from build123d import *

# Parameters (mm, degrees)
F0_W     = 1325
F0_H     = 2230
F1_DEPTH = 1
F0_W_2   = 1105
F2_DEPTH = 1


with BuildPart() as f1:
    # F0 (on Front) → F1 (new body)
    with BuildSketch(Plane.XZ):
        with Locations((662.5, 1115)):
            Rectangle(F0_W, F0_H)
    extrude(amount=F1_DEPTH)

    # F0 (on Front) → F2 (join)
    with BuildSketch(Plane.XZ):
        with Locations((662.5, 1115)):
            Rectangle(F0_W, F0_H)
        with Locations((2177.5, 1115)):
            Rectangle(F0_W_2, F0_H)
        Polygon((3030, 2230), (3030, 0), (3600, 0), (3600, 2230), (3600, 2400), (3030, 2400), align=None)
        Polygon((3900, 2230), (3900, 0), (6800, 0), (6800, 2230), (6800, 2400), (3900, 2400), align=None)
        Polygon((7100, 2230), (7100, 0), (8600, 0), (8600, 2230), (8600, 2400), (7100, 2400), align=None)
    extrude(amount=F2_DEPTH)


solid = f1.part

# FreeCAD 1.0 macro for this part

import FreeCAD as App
import Part
import Sketcher
from FreeCAD import Vector

doc = App.newDocument("Part")
body = doc.addObject("PartDesign::Body", "Body")
body.AllowCompound = True

# Sketch on XZ plane
sketch1 = body.newObject("Sketcher::SketchObject", "Sketch")
sketch1.AttachmentSupport = (doc.getObject("XZ_Plane"), [""])
sketch1.MapMode = "FlatFace"
sketch1.addGeometry(Part.LineSegment(Vector(0, 2230, 0), Vector(0, 0, 0)), False)
sketch1.addGeometry(Part.LineSegment(Vector(0, 0, 0), Vector(1325, 0, 0)), False)
sketch1.addGeometry(Part.LineSegment(Vector(1325, 0, 0), Vector(1325, 2230, 0)), False)
sketch1.addGeometry(Part.LineSegment(Vector(1325, 2230, 0), Vector(0, 2230, 0)), False)
sketch1.addConstraint(Sketcher.Constraint("Coincident", 0, 2, 1, 1))
sketch1.addConstraint(Sketcher.Constraint("Coincident", 1, 2, 2, 1))
sketch1.addConstraint(Sketcher.Constraint("Coincident", 2, 2, 3, 1))
sketch1.addConstraint(Sketcher.Constraint("Coincident", 3, 2, 0, 1))
sketch1.addConstraint(Sketcher.Constraint("Vertical", 0))
sketch1.addConstraint(Sketcher.Constraint("Horizontal", 1))
sketch1.addConstraint(Sketcher.Constraint("Vertical", 2))
sketch1.addConstraint(Sketcher.Constraint("Horizontal", 3))
sketch1.addConstraint(Sketcher.Constraint("Coincident", 0, 2, -1, 1))
sketch1.addConstraint(Sketcher.Constraint("DistanceX", 1, 1, 1, 2, 1325.0))
sketch1.addConstraint(Sketcher.Constraint("DistanceY", 0, 2, 0, 1, 2230.0))
pad1 = body.newObject("PartDesign::Pad", "Pad")
pad1.Profile = sketch1
pad1.Length = 1

# Sketch on XZ plane
sketch2 = body.newObject("Sketcher::SketchObject", "Sketch001")
sketch2.AttachmentSupport = (doc.getObject("XZ_Plane"), [""])
sketch2.MapMode = "FlatFace"
sketch2.addGeometry(Part.LineSegment(Vector(0, 2230, 0), Vector(0, 0, 0)), False)
sketch2.addGeometry(Part.LineSegment(Vector(0, 0, 0), Vector(1325, 0, 0)), False)
sketch2.addGeometry(Part.LineSegment(Vector(1325, 0, 0), Vector(1325, 2230, 0)), False)
sketch2.addGeometry(Part.LineSegment(Vector(1325, 2230, 0), Vector(0, 2230, 0)), False)
sketch2.addGeometry(Part.LineSegment(Vector(1625, 2230, 0), Vector(1625, 0, 0)), False)
sketch2.addGeometry(Part.LineSegment(Vector(1625, 0, 0), Vector(2730, 0, 0)), False)
sketch2.addGeometry(Part.LineSegment(Vector(2730, 0, 0), Vector(2730, 2230, 0)), False)
sketch2.addGeometry(Part.LineSegment(Vector(2730, 2230, 0), Vector(1625, 2230, 0)), False)
sketch2.addGeometry(Part.LineSegment(Vector(3030, 0, 0), Vector(3600, 0, 0)), False)
sketch2.addGeometry(Part.LineSegment(Vector(3600, 0, 0), Vector(3600, 2400, 0)), False)
sketch2.addGeometry(Part.LineSegment(Vector(3600, 2400, 0), Vector(3030, 2400, 0)), False)
sketch2.addGeometry(Part.LineSegment(Vector(3030, 2400, 0), Vector(3030, 0, 0)), False)
sketch2.addGeometry(Part.LineSegment(Vector(3900, 0, 0), Vector(6800, 0, 0)), False)
sketch2.addGeometry(Part.LineSegment(Vector(6800, 0, 0), Vector(6800, 2400, 0)), False)
sketch2.addGeometry(Part.LineSegment(Vector(6800, 2400, 0), Vector(3900, 2400, 0)), False)
sketch2.addGeometry(Part.LineSegment(Vector(3900, 2400, 0), Vector(3900, 0, 0)), False)
sketch2.addGeometry(Part.LineSegment(Vector(7100, 0, 0), Vector(8600, 0, 0)), False)
sketch2.addGeometry(Part.LineSegment(Vector(8600, 0, 0), Vector(8600, 2400, 0)), False)
sketch2.addGeometry(Part.LineSegment(Vector(8600, 2400, 0), Vector(7100, 2400, 0)), False)
sketch2.addGeometry(Part.LineSegment(Vector(7100, 2400, 0), Vector(7100, 0, 0)), False)
sketch2.addConstraint(Sketcher.Constraint("Coincident", 0, 2, 1, 1))
sketch2.addConstraint(Sketcher.Constraint("Coincident", 1, 2, 2, 1))
sketch2.addConstraint(Sketcher.Constraint("Coincident", 2, 2, 3, 1))
sketch2.addConstraint(Sketcher.Constraint("Coincident", 3, 2, 0, 1))
sketch2.addConstraint(Sketcher.Constraint("Coincident", 4, 2, 5, 1))
sketch2.addConstraint(Sketcher.Constraint("Coincident", 5, 2, 6, 1))
sketch2.addConstraint(Sketcher.Constraint("Coincident", 6, 2, 7, 1))
sketch2.addConstraint(Sketcher.Constraint("Coincident", 7, 2, 4, 1))
sketch2.addConstraint(Sketcher.Constraint("Coincident", 8, 2, 9, 1))
sketch2.addConstraint(Sketcher.Constraint("Coincident", 9, 2, 10, 1))
sketch2.addConstraint(Sketcher.Constraint("Coincident", 10, 2, 11, 1))
sketch2.addConstraint(Sketcher.Constraint("Coincident", 11, 2, 8, 1))
sketch2.addConstraint(Sketcher.Constraint("Coincident", 12, 2, 13, 1))
sketch2.addConstraint(Sketcher.Constraint("Coincident", 13, 2, 14, 1))
sketch2.addConstraint(Sketcher.Constraint("Coincident", 14, 2, 15, 1))
sketch2.addConstraint(Sketcher.Constraint("Coincident", 15, 2, 12, 1))
sketch2.addConstraint(Sketcher.Constraint("Coincident", 16, 2, 17, 1))
sketch2.addConstraint(Sketcher.Constraint("Coincident", 17, 2, 18, 1))
sketch2.addConstraint(Sketcher.Constraint("Coincident", 18, 2, 19, 1))
sketch2.addConstraint(Sketcher.Constraint("Coincident", 19, 2, 16, 1))
sketch2.addConstraint(Sketcher.Constraint("Vertical", 0))
sketch2.addConstraint(Sketcher.Constraint("Horizontal", 1))
sketch2.addConstraint(Sketcher.Constraint("Vertical", 2))
sketch2.addConstraint(Sketcher.Constraint("Horizontal", 3))
sketch2.addConstraint(Sketcher.Constraint("Vertical", 4))
sketch2.addConstraint(Sketcher.Constraint("Horizontal", 5))
sketch2.addConstraint(Sketcher.Constraint("Vertical", 6))
sketch2.addConstraint(Sketcher.Constraint("Horizontal", 7))
sketch2.addConstraint(Sketcher.Constraint("Horizontal", 8))
sketch2.addConstraint(Sketcher.Constraint("Vertical", 9))
sketch2.addConstraint(Sketcher.Constraint("Horizontal", 10))
sketch2.addConstraint(Sketcher.Constraint("Vertical", 11))
sketch2.addConstraint(Sketcher.Constraint("Horizontal", 12))
sketch2.addConstraint(Sketcher.Constraint("Vertical", 13))
sketch2.addConstraint(Sketcher.Constraint("Horizontal", 14))
sketch2.addConstraint(Sketcher.Constraint("Vertical", 15))
sketch2.addConstraint(Sketcher.Constraint("Horizontal", 16))
sketch2.addConstraint(Sketcher.Constraint("Vertical", 17))
sketch2.addConstraint(Sketcher.Constraint("Horizontal", 18))
sketch2.addConstraint(Sketcher.Constraint("Vertical", 19))
sketch2.addConstraint(Sketcher.Constraint("Coincident", 0, 2, -1, 1))
sketch2.addConstraint(Sketcher.Constraint("PointOnObject", 4, 2, -1))
sketch2.addConstraint(Sketcher.Constraint("PointOnObject", 8, 2, -1))
sketch2.addConstraint(Sketcher.Constraint("PointOnObject", 12, 2, -1))
sketch2.addConstraint(Sketcher.Constraint("PointOnObject", 16, 2, -1))
sketch2.addConstraint(Sketcher.Constraint("Horizontal", 3, 2, 6, 2))
sketch2.addConstraint(Sketcher.Constraint("Horizontal", 10, 2, 13, 2))
sketch2.addConstraint(Sketcher.Constraint("Horizontal", 14, 2, 17, 2))
sketch2.addConstraint(Sketcher.Constraint("DistanceX", 1, 1, 1, 2, 1325.0))
sketch2.addConstraint(Sketcher.Constraint("DistanceX", 5, 1, 5, 2, 1105.0))
sketch2.addConstraint(Sketcher.Constraint("DistanceX", 8, 1, 8, 2, 570.0))
sketch2.addConstraint(Sketcher.Constraint("DistanceX", 12, 1, 12, 2, 2900.0))
sketch2.addConstraint(Sketcher.Constraint("DistanceX", 16, 1, 16, 2, 1500.0))
sketch2.addConstraint(Sketcher.Constraint("DistanceY", 0, 2, 0, 1, 2230.0))
sketch2.addConstraint(Sketcher.Constraint("DistanceY", 9, 1, 9, 2, 2400.0))
sketch2.addConstraint(Sketcher.Constraint("DistanceX", -1, 1, 4, 2, 1625.0))
sketch2.addConstraint(Sketcher.Constraint("DistanceX", -1, 1, 8, 2, 3600.0))
sketch2.addConstraint(Sketcher.Constraint("DistanceX", -1, 1, 12, 2, 6800.0))
sketch2.addConstraint(Sketcher.Constraint("DistanceX", -1, 1, 16, 2, 8600.0))
pad2 = body.newObject("PartDesign::Pad", "Pad001")
pad2.Profile = sketch2
pad2.Length = 1

doc.recompute()
